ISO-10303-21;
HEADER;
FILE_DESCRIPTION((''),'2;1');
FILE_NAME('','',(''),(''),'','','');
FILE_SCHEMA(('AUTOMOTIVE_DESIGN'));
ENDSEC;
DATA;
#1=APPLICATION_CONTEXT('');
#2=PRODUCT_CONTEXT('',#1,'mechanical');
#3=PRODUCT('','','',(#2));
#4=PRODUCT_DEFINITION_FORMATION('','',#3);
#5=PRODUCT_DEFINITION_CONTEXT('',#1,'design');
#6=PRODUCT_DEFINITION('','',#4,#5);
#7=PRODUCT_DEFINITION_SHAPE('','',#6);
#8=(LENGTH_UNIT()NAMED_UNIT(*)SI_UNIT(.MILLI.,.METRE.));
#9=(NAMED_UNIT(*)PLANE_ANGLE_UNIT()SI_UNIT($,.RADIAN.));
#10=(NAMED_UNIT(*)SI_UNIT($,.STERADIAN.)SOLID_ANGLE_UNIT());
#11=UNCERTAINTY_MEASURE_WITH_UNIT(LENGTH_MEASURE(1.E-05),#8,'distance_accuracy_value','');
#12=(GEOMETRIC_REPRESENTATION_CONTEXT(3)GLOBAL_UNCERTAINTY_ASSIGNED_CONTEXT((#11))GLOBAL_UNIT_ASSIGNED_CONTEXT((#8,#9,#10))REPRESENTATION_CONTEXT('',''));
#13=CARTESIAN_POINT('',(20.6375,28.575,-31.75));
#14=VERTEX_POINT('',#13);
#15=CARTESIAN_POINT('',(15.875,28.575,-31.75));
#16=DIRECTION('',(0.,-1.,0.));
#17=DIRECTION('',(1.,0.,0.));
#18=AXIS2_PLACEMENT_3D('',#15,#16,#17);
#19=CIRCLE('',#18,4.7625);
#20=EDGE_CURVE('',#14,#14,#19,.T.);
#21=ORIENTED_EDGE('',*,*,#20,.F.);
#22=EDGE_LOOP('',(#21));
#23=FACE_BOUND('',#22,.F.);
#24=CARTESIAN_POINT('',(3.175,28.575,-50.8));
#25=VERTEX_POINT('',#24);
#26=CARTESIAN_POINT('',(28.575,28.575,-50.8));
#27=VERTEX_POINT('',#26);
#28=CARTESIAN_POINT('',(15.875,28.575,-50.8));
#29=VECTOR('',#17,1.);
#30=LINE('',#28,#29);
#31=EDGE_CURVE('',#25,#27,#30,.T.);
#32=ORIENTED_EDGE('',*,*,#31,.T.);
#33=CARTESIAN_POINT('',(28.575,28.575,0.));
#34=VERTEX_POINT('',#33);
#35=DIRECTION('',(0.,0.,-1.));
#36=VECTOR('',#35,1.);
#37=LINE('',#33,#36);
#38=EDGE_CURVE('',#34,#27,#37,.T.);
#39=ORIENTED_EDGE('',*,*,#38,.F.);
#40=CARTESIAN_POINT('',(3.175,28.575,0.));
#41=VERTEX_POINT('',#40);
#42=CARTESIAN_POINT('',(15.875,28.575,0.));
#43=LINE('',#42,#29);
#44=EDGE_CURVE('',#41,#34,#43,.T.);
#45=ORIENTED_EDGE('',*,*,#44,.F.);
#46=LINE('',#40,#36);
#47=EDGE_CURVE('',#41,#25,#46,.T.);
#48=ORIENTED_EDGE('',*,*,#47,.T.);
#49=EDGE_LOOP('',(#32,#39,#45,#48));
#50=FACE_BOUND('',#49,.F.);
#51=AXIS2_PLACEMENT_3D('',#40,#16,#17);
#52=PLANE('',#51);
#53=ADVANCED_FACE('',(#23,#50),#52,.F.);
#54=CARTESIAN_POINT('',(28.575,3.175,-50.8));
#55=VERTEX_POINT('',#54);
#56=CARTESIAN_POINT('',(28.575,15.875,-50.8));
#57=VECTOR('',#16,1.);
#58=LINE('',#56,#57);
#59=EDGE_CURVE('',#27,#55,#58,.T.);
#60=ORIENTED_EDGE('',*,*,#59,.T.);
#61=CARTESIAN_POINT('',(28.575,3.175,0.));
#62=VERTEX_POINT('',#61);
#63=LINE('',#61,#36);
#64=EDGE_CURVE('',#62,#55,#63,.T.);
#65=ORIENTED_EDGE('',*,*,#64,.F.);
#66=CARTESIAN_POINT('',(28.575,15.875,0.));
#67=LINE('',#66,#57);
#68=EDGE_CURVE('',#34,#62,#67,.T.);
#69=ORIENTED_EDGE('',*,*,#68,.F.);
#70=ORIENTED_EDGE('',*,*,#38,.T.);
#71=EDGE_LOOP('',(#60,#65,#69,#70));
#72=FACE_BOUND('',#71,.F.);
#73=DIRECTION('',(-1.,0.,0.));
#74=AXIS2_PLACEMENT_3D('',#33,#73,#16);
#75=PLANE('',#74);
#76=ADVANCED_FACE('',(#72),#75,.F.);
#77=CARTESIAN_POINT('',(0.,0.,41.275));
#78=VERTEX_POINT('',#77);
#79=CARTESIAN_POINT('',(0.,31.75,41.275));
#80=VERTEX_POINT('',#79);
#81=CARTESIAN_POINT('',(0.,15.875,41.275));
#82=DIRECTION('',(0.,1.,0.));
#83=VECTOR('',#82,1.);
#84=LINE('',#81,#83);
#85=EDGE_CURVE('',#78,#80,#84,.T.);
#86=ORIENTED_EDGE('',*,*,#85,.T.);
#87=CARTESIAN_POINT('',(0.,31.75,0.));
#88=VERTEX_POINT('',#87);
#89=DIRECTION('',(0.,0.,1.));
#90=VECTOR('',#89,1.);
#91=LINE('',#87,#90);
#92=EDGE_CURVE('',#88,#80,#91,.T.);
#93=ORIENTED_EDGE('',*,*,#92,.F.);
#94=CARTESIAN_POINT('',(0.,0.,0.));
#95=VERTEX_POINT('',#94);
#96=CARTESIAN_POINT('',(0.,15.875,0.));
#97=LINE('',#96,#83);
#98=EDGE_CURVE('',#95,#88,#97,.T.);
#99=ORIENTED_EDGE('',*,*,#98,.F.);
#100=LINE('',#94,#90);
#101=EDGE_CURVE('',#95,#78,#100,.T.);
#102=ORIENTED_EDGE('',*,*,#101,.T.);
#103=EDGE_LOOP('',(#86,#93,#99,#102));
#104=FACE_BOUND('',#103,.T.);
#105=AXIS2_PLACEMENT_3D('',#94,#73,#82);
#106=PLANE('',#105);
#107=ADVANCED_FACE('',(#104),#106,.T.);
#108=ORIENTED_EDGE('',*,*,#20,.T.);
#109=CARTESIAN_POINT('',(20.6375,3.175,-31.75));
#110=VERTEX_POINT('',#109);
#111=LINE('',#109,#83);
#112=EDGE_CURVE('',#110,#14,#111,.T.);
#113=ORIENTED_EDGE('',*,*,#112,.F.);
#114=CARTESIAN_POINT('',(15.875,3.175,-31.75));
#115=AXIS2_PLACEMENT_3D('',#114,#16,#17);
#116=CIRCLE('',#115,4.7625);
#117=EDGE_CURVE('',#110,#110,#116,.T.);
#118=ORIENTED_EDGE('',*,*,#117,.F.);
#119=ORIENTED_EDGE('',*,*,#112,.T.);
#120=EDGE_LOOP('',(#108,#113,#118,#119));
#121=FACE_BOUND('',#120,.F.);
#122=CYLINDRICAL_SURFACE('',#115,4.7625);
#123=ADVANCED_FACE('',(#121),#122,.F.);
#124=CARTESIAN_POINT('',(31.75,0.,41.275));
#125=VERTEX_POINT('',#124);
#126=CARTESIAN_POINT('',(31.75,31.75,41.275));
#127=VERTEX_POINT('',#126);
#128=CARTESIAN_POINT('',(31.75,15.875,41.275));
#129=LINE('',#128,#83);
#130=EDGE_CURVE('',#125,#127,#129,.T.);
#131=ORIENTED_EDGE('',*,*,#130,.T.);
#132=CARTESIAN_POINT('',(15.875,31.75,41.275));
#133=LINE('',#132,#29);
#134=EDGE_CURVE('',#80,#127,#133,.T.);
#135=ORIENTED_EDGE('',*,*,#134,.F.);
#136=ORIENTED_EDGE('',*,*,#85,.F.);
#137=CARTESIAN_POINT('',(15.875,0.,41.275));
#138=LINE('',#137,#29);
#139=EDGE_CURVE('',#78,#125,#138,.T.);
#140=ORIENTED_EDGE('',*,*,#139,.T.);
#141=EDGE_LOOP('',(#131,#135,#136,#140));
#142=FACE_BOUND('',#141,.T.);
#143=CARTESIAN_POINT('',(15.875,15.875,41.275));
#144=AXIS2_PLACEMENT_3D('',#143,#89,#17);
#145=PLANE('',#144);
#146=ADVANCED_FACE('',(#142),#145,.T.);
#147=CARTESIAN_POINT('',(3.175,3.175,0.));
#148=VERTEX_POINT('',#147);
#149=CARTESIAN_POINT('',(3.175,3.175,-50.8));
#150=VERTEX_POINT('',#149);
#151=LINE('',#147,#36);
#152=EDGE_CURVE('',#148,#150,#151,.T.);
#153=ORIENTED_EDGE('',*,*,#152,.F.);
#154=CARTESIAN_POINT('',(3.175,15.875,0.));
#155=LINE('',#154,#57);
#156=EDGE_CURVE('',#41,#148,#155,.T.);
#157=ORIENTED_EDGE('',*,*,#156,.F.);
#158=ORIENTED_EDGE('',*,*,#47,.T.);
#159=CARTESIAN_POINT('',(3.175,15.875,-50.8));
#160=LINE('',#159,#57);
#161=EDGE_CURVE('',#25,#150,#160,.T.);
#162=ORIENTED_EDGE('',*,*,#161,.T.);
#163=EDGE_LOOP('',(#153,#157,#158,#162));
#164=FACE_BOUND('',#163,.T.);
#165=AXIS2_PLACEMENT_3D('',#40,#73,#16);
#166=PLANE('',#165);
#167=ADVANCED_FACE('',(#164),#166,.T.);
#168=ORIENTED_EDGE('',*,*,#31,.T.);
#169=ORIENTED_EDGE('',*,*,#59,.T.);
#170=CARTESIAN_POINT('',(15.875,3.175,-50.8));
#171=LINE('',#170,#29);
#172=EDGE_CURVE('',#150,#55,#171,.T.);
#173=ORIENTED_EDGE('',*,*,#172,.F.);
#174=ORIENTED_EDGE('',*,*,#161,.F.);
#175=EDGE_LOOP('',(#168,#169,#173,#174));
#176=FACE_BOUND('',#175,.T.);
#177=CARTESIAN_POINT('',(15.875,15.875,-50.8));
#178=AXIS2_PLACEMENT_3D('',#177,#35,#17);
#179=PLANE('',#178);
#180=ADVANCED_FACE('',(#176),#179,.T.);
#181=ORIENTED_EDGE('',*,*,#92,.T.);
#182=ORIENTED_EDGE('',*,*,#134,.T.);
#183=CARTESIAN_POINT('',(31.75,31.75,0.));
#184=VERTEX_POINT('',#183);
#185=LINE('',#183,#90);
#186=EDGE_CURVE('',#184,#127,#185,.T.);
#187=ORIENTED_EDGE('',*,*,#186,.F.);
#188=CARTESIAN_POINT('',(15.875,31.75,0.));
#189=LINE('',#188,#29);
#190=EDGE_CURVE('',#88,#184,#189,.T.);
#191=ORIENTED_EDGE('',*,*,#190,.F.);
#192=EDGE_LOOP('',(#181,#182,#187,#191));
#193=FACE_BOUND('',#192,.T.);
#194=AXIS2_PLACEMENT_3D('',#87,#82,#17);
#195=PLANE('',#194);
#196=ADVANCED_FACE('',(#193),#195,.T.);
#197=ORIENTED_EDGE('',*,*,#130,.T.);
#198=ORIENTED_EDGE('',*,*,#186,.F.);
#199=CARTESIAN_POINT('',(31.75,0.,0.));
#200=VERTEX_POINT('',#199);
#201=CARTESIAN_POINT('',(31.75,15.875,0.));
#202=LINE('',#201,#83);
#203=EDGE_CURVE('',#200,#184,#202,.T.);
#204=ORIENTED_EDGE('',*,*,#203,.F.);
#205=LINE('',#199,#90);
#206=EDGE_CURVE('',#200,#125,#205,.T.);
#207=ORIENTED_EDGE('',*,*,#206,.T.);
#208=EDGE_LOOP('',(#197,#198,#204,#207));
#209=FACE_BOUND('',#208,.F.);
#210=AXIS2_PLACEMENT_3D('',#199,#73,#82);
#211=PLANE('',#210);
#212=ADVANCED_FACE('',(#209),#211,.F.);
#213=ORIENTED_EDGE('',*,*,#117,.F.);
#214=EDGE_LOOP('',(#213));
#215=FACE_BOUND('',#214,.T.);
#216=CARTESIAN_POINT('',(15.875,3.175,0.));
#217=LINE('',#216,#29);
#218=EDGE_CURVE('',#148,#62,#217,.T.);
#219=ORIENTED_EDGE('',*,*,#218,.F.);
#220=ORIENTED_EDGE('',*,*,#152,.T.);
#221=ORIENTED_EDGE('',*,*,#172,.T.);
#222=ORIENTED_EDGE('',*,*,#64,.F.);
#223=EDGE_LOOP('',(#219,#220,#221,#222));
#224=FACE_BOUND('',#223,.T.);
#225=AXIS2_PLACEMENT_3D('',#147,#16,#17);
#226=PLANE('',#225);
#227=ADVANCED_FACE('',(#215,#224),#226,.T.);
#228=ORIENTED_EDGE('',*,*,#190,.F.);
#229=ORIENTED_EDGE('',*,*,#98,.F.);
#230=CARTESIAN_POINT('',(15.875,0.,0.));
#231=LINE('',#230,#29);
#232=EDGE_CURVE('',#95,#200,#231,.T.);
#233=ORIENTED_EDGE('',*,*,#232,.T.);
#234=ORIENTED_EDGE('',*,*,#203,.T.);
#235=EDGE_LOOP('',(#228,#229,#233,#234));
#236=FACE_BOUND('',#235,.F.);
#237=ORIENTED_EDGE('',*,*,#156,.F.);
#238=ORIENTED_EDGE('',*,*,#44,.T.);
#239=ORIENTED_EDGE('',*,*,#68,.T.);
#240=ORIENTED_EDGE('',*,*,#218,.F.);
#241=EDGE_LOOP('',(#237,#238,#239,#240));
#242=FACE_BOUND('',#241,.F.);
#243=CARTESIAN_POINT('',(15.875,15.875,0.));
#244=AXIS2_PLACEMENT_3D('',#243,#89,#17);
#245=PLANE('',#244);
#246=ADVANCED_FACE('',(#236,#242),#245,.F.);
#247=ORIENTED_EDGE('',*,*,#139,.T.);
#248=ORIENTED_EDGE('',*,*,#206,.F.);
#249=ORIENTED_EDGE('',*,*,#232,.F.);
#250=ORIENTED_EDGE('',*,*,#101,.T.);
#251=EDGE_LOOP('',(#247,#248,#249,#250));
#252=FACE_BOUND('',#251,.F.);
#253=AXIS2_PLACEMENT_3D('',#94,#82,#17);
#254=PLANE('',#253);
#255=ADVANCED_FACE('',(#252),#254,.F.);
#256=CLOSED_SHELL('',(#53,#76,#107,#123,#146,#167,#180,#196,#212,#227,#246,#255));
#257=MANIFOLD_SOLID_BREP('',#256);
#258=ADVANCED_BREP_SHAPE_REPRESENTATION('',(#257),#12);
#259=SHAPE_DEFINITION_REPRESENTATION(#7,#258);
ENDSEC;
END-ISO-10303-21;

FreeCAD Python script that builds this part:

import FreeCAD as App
import Part
import Sketcher
Q = App.Units.Quantity


def add_polygon(sketch, points):
    """Adds a closed chain of lines whose ends are joined by coincident constraints."""
    first, n = sketch.GeometryCount, len(points)
    for a, b in zip(points, points[1:] + points[:1]):
        sketch.addGeometry(Part.LineSegment(App.Vector(*a, 0), App.Vector(*b, 0)), False)
    for i in range(n):
        sketch.addConstraint(Sketcher.Constraint("Coincident", first + i, 2, first + (i + 1) % n, 1))

doc = App.newDocument("Part")
params = doc.addObject("Spreadsheet::Sheet", "Params")
for row, (alias, value) in enumerate([
    ("sketch1_width", "1.25 in"),
    ("pad1_length", "1.625 in"),
    ("sketch2_width", "1 in"),
    ("pad2_length", "2 in"),
    ("sketch3_diameter", "0.375 in"),
], start=1):
    params.set(f"A{row}", alias)
    params.set(f"B{row}", "=" + value)
    params.setAlias(f"B{row}", alias)

body = doc.addObject("PartDesign::Body", "Body")

# Sketch on XY plane
sketch1 = body.newObject("Sketcher::SketchObject", "Sketch")
sketch1.AttachmentSupport = (doc.getObject("XY_Plane"), [""])
sketch1.MapMode = "FlatFace"
add_polygon(sketch1, [(0, 31.75), (0, 0), (31.75, 0), (31.75, 31.75)])  # lines 0-3
sketch1.addConstraint([
    Sketcher.Constraint("Vertical", 0),
    Sketcher.Constraint("Horizontal", 1),
    Sketcher.Constraint("Vertical", 2),
    Sketcher.Constraint("Horizontal", 3),
    Sketcher.Constraint("Coincident", 0, 2, -1, 1),
    Sketcher.Constraint("Equal", 3, 0),
    Sketcher.Constraint("DistanceX", 1, 1, 1, 2, Q("1.25 in")),
])
sketch1.setExpression("Constraints[10]", "Params.sketch1_width")
pad1 = body.newObject("PartDesign::Pad", "Pad")
pad1.Profile = sketch1
pad1.setExpression("Length", "Params.pad1_length")

# Sketch on XY plane
sketch2 = body.newObject("Sketcher::SketchObject", "Sketch001")
sketch2.AttachmentSupport = (doc.getObject("XY_Plane"), [""])
sketch2.MapMode = "FlatFace"
add_polygon(sketch2, [(3.175, 3.175), (3.175, 28.575), (28.575, 28.575), (28.575, 3.175)])  # lines 0-3
sketch2.addConstraint([
    Sketcher.Constraint("Vertical", 0),
    Sketcher.Constraint("Horizontal", 1),
    Sketcher.Constraint("Vertical", 2),
    Sketcher.Constraint("Horizontal", 3),
    Sketcher.Constraint("Equal", 3, 0),
    Sketcher.Constraint("DistanceX", 1, 1, 1, 2, Q("1 in")),
    Sketcher.Constraint("DistanceX", -1, 1, 0, 2, Q("0.125 in")),
    Sketcher.Constraint("DistanceY", -1, 1, 0, 2, Q("1.125 in")),
])
sketch2.setExpression("Constraints[9]", "Params.sketch2_width")
pad2 = body.newObject("PartDesign::Pad", "Pad001")
pad2.Profile = sketch2
pad2.setExpression("Length", "Params.pad2_length")
pad2.Reversed = True

# Sketch on XZ plane
sketch3 = body.newObject("Sketcher::SketchObject", "Sketch002")
sketch3.AttachmentSupport = (doc.getObject("XZ_Plane"), [""])
sketch3.MapMode = "FlatFace"
sketch3.AttachmentOffset = App.Placement(App.Vector(0, 0, -0.125 * 25.4), App.Rotation())
sketch3.addGeometry(Part.Circle(App.Vector(15.875, -31.75, 0), App.Vector(0, 0, 1), 4.7625), False)
sketch3.addConstraint([
    Sketcher.Constraint("Diameter", 0, Q("0.375 in")),
    Sketcher.Constraint("DistanceY", 0, 3, -1, 1, Q("1.25 in")),
    Sketcher.Constraint("DistanceX", -1, 1, 0, 3, Q("0.625 in")),
])
sketch3.setExpression("Constraints[0]", "Params.sketch3_diameter")
pocket1 = body.newObject("PartDesign::Pocket", "Pocket")
pocket1.Profile = sketch3
pocket1.Type = "ThroughAll"

doc.recompute()
